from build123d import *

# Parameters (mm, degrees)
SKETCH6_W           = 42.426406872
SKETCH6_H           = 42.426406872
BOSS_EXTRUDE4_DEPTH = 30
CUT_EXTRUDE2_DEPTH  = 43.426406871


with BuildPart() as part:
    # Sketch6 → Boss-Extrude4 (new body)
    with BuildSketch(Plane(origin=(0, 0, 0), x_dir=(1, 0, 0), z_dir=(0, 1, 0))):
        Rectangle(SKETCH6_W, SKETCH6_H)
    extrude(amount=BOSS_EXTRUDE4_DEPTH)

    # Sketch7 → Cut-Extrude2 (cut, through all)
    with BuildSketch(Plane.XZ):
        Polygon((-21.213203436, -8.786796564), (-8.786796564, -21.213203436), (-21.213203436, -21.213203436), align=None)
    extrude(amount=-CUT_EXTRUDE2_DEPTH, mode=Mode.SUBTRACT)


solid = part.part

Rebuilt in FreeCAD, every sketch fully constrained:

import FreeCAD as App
import Part
import Sketcher

V = App.Vector
Q = App.Units.Quantity

doc = App.newDocument("Part")
body = doc.addObject("PartDesign::Body", "Body")

# Sketch on XZ plane
sketch1 = body.newObject("Sketcher::SketchObject", "Sketch")
sketch1.AttachmentSupport = (doc.getObject("XZ_Plane"), [""])
sketch1.MapMode = "FlatFace"
sketch1.addGeometry([
    Part.LineSegment(V(-21, -21, 0), V(-21, 21, 0)),
    Part.LineSegment(V(-21, 21, 0), V(21, 21, 0)),
    Part.LineSegment(V(21, 21, 0), V(21, -21, 0)),
    Part.LineSegment(V(21, -21, 0), V(-21, -21, 0)),
], False)
sketch1.addConstraint([
    Sketcher.Constraint("Coincident", 0, 2, 1, 1),
    Sketcher.Constraint("Coincident", 1, 2, 2, 1),
    Sketcher.Constraint("Coincident", 2, 2, 3, 1),
    Sketcher.Constraint("Coincident", 3, 2, 0, 1),
    Sketcher.Constraint("Vertical", 0),
    Sketcher.Constraint("Horizontal", 1),
    Sketcher.Constraint("Vertical", 2),
    Sketcher.Constraint("Horizontal", 3),
    Sketcher.Constraint("Symmetric", 0, 2, 2, 2, -1, 1),
    Sketcher.Constraint("Equal", 3, 0),
    Sketcher.Constraint("DistanceX", 1, 1, 1, 2, Q("42.426407 mm")),
])
pad1 = body.newObject("PartDesign::Pad", "Pad")
pad1.Profile = sketch1
pad1.Length = 30
pad1.Reversed = True

# Sketch on XZ plane
sketch2 = body.newObject("Sketcher::SketchObject", "Sketch001")
sketch2.AttachmentSupport = (doc.getObject("XZ_Plane"), [""])
sketch2.MapMode = "FlatFace"
sketch2.addGeometry([
    Part.LineSegment(V(-9, -21, 0), V(-21, -9, 0)),
    Part.LineSegment(V(-21, -9, 0), V(-21, -21, 0)),
    Part.LineSegment(V(-21, -21, 0), V(-9, -21, 0)),
], False)
sketch2.addConstraint([
    Sketcher.Constraint("Coincident", 0, 2, 1, 1),
    Sketcher.Constraint("Coincident", 1, 2, 2, 1),
    Sketcher.Constraint("Coincident", 2, 2, 0, 1),
    Sketcher.Constraint("Vertical", 1),
    Sketcher.Constraint("Horizontal", 2),
    Sketcher.Constraint("Equal", 2, 1),
    Sketcher.Constraint("DistanceX", 2, 1, 2, 2, Q("12.426407 mm")),
    Sketcher.Constraint("DistanceX", 0, 2, -1, 1, Q("21.213203 mm")),
    Sketcher.Constraint("DistanceY", 0, 2, -1, 1, Q("8.786797 mm")),
])
pocket1 = body.newObject("PartDesign::Pocket", "Pocket")
pocket1.Profile = sketch2
pocket1.Type = "ThroughAll"

doc.recompute()
